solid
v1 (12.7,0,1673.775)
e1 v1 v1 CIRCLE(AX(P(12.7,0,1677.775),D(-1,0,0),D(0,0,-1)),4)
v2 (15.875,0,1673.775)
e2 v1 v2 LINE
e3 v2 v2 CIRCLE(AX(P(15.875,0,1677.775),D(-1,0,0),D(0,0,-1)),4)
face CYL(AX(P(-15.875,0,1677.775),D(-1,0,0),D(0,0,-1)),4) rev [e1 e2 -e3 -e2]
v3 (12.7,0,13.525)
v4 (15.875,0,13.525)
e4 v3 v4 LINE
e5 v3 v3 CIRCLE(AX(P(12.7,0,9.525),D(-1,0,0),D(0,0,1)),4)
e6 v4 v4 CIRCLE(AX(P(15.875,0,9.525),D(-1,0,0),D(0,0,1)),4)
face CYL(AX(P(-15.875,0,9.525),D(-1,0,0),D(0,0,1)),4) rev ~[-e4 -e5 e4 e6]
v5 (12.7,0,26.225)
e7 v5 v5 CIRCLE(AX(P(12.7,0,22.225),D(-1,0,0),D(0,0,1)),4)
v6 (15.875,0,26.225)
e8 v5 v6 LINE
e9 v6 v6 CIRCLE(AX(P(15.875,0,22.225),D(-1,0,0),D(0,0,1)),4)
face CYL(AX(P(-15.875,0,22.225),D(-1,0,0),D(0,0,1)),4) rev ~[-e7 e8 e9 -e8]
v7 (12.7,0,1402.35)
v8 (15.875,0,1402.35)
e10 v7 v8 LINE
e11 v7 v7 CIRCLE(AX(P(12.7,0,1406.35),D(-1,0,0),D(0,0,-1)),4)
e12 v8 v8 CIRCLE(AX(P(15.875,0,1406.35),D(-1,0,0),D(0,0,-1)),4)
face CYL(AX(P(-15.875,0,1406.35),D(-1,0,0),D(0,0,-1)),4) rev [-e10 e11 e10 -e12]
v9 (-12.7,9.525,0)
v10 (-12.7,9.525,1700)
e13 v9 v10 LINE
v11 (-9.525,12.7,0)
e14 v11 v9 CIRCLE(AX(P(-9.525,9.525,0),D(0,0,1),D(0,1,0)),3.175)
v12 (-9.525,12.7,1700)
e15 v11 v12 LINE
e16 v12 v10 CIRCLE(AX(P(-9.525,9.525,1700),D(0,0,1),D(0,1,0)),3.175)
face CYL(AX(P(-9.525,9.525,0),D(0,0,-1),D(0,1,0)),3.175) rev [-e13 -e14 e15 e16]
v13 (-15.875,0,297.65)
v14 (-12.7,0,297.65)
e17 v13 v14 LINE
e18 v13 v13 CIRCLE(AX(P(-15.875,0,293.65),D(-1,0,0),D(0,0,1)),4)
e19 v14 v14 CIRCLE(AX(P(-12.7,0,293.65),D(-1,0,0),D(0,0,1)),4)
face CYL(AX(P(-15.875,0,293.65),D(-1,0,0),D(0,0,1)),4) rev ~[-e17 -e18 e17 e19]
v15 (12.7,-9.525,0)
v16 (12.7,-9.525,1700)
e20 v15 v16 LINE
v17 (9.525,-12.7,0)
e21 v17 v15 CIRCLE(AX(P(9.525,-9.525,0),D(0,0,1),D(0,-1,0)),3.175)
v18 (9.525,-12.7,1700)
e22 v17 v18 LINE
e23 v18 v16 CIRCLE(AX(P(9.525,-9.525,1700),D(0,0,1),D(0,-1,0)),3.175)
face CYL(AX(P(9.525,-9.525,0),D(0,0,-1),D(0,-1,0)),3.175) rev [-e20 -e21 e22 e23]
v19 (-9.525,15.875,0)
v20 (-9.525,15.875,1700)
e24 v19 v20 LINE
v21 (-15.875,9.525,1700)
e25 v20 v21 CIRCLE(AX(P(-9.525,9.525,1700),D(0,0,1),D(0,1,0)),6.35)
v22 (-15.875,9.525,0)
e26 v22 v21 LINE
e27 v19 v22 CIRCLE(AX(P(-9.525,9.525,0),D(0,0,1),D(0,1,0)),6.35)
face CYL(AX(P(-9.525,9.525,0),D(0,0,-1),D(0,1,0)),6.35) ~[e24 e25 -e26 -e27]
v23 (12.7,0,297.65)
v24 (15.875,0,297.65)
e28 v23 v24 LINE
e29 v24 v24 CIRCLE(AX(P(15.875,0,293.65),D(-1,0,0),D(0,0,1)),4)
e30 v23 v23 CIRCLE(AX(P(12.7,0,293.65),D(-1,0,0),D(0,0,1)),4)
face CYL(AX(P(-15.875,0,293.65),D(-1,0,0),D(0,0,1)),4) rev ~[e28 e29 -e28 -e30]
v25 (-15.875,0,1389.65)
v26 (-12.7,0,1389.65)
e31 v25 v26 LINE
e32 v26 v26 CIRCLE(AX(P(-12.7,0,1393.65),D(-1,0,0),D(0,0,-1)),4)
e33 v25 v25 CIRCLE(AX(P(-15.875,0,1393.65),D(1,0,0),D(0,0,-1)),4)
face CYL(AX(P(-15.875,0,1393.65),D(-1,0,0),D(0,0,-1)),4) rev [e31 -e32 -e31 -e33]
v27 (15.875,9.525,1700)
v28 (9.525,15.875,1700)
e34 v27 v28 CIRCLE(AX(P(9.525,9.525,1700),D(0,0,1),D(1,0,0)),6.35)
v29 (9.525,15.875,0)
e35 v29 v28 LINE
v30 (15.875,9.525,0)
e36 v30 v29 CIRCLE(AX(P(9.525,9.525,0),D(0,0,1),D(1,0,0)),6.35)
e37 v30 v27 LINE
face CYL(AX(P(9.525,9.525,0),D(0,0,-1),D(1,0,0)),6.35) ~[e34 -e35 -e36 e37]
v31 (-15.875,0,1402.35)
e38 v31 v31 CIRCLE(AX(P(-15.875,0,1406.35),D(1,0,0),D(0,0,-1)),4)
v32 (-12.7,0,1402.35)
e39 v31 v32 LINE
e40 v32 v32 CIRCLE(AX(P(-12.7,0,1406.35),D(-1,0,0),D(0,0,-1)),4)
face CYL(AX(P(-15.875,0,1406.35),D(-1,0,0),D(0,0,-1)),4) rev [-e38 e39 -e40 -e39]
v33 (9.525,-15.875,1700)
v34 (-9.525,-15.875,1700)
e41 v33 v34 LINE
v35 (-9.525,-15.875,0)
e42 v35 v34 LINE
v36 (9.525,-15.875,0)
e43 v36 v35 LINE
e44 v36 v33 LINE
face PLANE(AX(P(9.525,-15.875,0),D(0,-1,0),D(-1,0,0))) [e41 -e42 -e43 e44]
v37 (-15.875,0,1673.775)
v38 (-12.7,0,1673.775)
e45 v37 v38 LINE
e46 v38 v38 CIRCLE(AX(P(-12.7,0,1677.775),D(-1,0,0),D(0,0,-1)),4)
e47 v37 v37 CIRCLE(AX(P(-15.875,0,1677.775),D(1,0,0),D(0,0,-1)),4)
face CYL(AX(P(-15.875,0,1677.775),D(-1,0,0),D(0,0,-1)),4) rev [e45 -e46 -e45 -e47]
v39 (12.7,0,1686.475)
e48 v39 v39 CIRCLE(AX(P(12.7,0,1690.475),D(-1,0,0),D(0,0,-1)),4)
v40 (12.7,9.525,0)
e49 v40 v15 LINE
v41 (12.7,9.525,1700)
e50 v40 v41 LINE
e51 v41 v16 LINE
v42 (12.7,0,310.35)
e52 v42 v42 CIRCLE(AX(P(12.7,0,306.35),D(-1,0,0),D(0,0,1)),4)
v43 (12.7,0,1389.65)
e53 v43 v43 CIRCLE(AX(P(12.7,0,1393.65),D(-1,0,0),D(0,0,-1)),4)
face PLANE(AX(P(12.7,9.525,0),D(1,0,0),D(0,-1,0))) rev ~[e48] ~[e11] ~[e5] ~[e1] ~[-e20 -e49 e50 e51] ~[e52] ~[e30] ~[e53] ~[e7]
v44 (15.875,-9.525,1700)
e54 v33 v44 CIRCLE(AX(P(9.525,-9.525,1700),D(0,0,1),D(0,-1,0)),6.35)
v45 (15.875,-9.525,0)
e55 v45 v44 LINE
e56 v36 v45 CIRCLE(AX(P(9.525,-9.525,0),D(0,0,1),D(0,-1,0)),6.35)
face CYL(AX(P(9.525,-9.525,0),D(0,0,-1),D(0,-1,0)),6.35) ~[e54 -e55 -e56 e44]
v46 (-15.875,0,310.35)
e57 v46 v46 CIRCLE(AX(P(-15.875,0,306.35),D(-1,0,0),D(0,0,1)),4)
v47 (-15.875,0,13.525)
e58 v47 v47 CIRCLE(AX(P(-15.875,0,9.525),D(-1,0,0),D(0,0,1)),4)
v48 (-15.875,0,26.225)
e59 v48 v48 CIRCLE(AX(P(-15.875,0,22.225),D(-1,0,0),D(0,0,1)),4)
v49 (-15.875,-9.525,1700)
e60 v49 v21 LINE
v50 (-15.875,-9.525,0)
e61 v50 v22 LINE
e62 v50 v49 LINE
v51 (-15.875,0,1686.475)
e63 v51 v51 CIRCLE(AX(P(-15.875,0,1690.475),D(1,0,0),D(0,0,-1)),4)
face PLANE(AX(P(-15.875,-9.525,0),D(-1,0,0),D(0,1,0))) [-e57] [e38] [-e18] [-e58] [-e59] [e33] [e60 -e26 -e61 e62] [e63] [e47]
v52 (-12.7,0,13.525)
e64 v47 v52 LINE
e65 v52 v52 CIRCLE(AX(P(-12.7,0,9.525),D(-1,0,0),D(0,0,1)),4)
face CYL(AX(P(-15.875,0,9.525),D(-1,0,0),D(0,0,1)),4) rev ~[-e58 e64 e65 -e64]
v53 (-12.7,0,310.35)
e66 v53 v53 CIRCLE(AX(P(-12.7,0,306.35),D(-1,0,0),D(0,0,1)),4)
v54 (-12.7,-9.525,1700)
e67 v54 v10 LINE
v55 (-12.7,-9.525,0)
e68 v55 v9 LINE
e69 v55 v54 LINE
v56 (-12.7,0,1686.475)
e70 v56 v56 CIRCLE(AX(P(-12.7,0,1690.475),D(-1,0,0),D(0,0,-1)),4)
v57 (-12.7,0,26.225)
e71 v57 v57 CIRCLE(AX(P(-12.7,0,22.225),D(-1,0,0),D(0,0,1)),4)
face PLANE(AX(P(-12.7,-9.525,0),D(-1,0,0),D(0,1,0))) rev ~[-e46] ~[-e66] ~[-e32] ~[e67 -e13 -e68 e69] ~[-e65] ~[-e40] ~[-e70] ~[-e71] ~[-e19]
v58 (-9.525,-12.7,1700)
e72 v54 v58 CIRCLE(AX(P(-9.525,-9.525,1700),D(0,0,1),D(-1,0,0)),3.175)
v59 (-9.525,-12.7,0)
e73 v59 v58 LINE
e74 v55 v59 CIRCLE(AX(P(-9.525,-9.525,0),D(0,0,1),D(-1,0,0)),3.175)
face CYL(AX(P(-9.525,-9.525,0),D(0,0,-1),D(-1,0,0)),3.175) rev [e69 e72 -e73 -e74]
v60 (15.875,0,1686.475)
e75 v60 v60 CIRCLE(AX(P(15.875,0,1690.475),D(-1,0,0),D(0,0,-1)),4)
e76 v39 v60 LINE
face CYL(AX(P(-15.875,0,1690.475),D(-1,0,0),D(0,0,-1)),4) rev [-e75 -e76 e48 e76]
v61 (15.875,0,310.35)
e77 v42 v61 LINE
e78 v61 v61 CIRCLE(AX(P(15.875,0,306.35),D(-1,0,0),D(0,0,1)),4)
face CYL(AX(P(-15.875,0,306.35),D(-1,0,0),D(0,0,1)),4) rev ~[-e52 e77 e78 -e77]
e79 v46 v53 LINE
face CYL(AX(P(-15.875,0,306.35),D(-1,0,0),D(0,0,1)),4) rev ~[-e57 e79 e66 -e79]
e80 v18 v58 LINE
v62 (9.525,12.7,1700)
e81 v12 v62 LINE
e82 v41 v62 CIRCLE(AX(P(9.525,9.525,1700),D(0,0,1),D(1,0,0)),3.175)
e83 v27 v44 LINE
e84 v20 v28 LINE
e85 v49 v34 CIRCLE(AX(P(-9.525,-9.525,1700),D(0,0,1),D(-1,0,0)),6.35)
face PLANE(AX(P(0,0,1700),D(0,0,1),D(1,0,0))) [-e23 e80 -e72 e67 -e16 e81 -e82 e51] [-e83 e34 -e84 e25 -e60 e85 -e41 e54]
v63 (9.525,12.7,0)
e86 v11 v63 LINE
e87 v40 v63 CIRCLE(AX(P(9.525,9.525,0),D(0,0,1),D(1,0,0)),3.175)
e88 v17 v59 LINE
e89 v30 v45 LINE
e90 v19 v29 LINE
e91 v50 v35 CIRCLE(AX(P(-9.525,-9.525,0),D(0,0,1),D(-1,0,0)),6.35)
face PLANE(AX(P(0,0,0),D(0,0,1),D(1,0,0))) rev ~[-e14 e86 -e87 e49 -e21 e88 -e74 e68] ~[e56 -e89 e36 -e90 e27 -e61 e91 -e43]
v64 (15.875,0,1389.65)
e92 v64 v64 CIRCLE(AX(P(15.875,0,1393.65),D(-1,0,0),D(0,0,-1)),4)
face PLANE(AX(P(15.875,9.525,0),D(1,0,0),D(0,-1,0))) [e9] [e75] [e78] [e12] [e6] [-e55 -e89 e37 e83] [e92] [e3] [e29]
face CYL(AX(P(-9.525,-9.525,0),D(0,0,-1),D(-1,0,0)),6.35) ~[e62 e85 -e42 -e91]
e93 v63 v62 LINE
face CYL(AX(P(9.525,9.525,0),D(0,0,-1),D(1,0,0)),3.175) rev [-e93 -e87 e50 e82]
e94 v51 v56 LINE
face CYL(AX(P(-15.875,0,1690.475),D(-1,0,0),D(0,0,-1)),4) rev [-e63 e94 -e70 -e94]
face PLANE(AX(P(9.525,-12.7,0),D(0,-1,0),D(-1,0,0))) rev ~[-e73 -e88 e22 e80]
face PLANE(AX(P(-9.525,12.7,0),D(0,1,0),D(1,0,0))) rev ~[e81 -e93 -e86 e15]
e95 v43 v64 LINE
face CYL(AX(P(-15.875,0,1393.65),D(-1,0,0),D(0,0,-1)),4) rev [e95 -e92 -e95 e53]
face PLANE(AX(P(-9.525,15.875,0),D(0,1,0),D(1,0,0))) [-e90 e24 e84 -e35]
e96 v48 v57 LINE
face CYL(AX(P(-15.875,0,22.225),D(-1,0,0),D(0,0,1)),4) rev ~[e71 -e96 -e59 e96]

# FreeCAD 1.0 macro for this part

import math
import FreeCAD as App
import Part
import Sketcher
from FreeCAD import Vector
Q = App.Units.Quantity

doc = App.newDocument("Part")
body = doc.addObject("PartDesign::Body", "Body")

# Sketch on XY plane
sketch1 = body.newObject("Sketcher::SketchObject", "Sketch")
sketch1.AttachmentSupport = (doc.getObject("XY_Plane"), [""])
sketch1.MapMode = "FlatFace"
sketch1.addGeometry([
    Part.LineSegment(Vector(-15.875, 9.525, 0), Vector(-15.875, -9.525, 0)),  # 0
    Part.ArcOfCircle(Part.Circle(Vector(-9.525, -9.525, 0), Vector(0, 0, 1), 6.35), math.radians(180), math.radians(270)),  # 1
    Part.LineSegment(Vector(-9.525, -15.875, 0), Vector(9.525, -15.875, 0)),  # 2
    Part.ArcOfCircle(Part.Circle(Vector(9.525, -9.525, 0), Vector(0, 0, 1), 6.35), math.radians(-90), math.radians(0)),  # 3
    Part.LineSegment(Vector(15.875, -9.525, 0), Vector(15.875, 9.525, 0)),  # 4
    Part.ArcOfCircle(Part.Circle(Vector(9.525, 9.525, 0), Vector(0, 0, 1), 6.35), math.radians(0), math.radians(90)),  # 5
    Part.LineSegment(Vector(9.525, 15.875, 0), Vector(-9.525, 15.875, 0)),  # 6
    Part.ArcOfCircle(Part.Circle(Vector(-9.525, 9.525, 0), Vector(0, 0, 1), 6.35), math.radians(90), math.radians(180)),  # 7
    Part.ArcOfCircle(Part.Circle(Vector(-9.525, 9.525, 0), Vector(0, 0, 1), 3.175), math.radians(90), math.radians(180)),  # 8
    Part.LineSegment(Vector(-9.525, 12.7, 0), Vector(9.525, 12.7, 0)),  # 9
    Part.ArcOfCircle(Part.Circle(Vector(9.525, 9.525, 0), Vector(0, 0, 1), 3.175), math.radians(0), math.radians(90)),  # 10
    Part.LineSegment(Vector(12.7, 9.525, 0), Vector(12.7, -9.525, 0)),  # 11
    Part.ArcOfCircle(Part.Circle(Vector(9.525, -9.525, 0), Vector(0, 0, 1), 3.175), math.radians(-90), math.radians(0)),  # 12
    Part.LineSegment(Vector(9.525, -12.7, 0), Vector(-9.525, -12.7, 0)),  # 13
    Part.ArcOfCircle(Part.Circle(Vector(-9.525, -9.525, 0), Vector(0, 0, 1), 3.175), math.radians(180), math.radians(270)),  # 14
    Part.LineSegment(Vector(-12.7, -9.525, 0), Vector(-12.7, 9.525, 0)),  # 15
], False)
sketch1.addConstraint([
    Sketcher.Constraint("Tangent", 0, 2, 1, 1),
    Sketcher.Constraint("Tangent", 1, 2, 2, 1),
    Sketcher.Constraint("Tangent", 2, 2, 3, 1),
    Sketcher.Constraint("Tangent", 3, 2, 4, 1),
    Sketcher.Constraint("Tangent", 4, 2, 5, 1),
    Sketcher.Constraint("Tangent", 5, 2, 6, 1),
    Sketcher.Constraint("Tangent", 6, 2, 7, 1),
    Sketcher.Constraint("Tangent", 7, 2, 0, 1),
    Sketcher.Constraint("Tangent", 8, 1, 9, 1),
    Sketcher.Constraint("Tangent", 9, 2, 10, 2),
    Sketcher.Constraint("Tangent", 10, 1, 11, 1),
    Sketcher.Constraint("Tangent", 11, 2, 12, 2),
    Sketcher.Constraint("Tangent", 12, 1, 13, 1),
    Sketcher.Constraint("Tangent", 13, 2, 14, 2),
    Sketcher.Constraint("Tangent", 14, 1, 15, 1),
    Sketcher.Constraint("Tangent", 15, 2, 8, 2),
    Sketcher.Constraint("Vertical", 0),
    Sketcher.Constraint("Horizontal", 2),
    Sketcher.Constraint("Vertical", 4),
    Sketcher.Constraint("Horizontal", 6),
    Sketcher.Constraint("Horizontal", 9),
    Sketcher.Constraint("Vertical", 11),
    Sketcher.Constraint("Horizontal", 13),
    Sketcher.Constraint("Vertical", 15),
    Sketcher.Constraint("Coincident", 8, 3, 7, 3),
    Sketcher.Constraint("Coincident", 10, 3, 5, 3),
    Sketcher.Constraint("Coincident", 12, 3, 3, 3),
    Sketcher.Constraint("Equal", 1, 3),
    Sketcher.Constraint("Equal", 3, 5),
    Sketcher.Constraint("Equal", 5, 7),
    Sketcher.Constraint("Equal", 12, 14),
    Sketcher.Constraint("Symmetric", 1, 3, 5, 3, -1, 1),
    Sketcher.Constraint("Equal", 13, 0),
    Sketcher.Constraint("Radius", 1, Q("0.25 in")),
    Sketcher.Constraint("Radius", 8, Q("0.125 in")),
    Sketcher.Constraint("DistanceX", 0, 2, -1, 1, Q("0.625 in")),
])
pad1 = body.newObject("PartDesign::Pad", "Pad")
pad1.Profile = sketch1
pad1.Length = 1700

# Sketch on YZ plane
sketch2 = body.newObject("Sketcher::SketchObject", "Sketch001")
sketch2.AttachmentSupport = (doc.getObject("YZ_Plane"), [""])
sketch2.MapMode = "FlatFace"
sketch2.AttachmentOffset = App.Placement(Vector(0, 0, -0.625 * 25.4), App.Rotation())
sketch2.addGeometry([
    Part.Circle(Vector(0, 293.65, 0), Vector(0, 0, 1), 4),
    Part.Circle(Vector(0, 306.35, 0), Vector(0, 0, 1), 4),
    Part.Circle(Vector(0, 9.525, 0), Vector(0, 0, 1), 4),
    Part.Circle(Vector(0, 22.225, 0), Vector(0, 0, 1), 4),
], False)
sketch2.addConstraint([
    Sketcher.Constraint("Equal", 0, 1),
    Sketcher.Constraint("Equal", 1, 2),
    Sketcher.Constraint("Equal", 2, 3),
    Sketcher.Constraint("PointOnObject", 0, 3, -2),
    Sketcher.Constraint("PointOnObject", 1, 3, -2),
    Sketcher.Constraint("PointOnObject", 2, 3, -2),
    Sketcher.Constraint("PointOnObject", 3, 3, -2),
    Sketcher.Constraint("Diameter", 0, Q("8 mm")),
    Sketcher.Constraint("DistanceY", 0, 3, 1, 3, Q("0.5 in")),
    Sketcher.Constraint("DistanceY", 2, 3, 3, 3, Q("0.5 in")),
    Sketcher.Constraint("DistanceY", -1, 1, 2, 3, Q("0.375 in")),
    Sketcher.Constraint("DistanceY", -1, 1, 0, 3, Q("293.65 mm")),
])
pocket1 = body.newObject("PartDesign::Pocket", "Pocket")
pocket1.Profile = sketch2
pocket1.Type = "ThroughAll"
pocket1.Reversed = True
doc.recompute()

datumplane = body.newObject("PartDesign::Plane", "DatumPlane")
datumplane.AttachmentSupport = (doc.getObject("XY_Plane"), [""])
datumplane.MapMode = "FlatFace"
datumplane.AttachmentOffset = App.Placement(Vector(0, 0, 850), App.Rotation())
mirrored = body.newObject("PartDesign::Mirrored", "Mirrored")
mirrored.Originals = [pocket1]
mirrored.MirrorPlane = (datumplane, [""])
body.Tip = mirrored

doc.recompute()
